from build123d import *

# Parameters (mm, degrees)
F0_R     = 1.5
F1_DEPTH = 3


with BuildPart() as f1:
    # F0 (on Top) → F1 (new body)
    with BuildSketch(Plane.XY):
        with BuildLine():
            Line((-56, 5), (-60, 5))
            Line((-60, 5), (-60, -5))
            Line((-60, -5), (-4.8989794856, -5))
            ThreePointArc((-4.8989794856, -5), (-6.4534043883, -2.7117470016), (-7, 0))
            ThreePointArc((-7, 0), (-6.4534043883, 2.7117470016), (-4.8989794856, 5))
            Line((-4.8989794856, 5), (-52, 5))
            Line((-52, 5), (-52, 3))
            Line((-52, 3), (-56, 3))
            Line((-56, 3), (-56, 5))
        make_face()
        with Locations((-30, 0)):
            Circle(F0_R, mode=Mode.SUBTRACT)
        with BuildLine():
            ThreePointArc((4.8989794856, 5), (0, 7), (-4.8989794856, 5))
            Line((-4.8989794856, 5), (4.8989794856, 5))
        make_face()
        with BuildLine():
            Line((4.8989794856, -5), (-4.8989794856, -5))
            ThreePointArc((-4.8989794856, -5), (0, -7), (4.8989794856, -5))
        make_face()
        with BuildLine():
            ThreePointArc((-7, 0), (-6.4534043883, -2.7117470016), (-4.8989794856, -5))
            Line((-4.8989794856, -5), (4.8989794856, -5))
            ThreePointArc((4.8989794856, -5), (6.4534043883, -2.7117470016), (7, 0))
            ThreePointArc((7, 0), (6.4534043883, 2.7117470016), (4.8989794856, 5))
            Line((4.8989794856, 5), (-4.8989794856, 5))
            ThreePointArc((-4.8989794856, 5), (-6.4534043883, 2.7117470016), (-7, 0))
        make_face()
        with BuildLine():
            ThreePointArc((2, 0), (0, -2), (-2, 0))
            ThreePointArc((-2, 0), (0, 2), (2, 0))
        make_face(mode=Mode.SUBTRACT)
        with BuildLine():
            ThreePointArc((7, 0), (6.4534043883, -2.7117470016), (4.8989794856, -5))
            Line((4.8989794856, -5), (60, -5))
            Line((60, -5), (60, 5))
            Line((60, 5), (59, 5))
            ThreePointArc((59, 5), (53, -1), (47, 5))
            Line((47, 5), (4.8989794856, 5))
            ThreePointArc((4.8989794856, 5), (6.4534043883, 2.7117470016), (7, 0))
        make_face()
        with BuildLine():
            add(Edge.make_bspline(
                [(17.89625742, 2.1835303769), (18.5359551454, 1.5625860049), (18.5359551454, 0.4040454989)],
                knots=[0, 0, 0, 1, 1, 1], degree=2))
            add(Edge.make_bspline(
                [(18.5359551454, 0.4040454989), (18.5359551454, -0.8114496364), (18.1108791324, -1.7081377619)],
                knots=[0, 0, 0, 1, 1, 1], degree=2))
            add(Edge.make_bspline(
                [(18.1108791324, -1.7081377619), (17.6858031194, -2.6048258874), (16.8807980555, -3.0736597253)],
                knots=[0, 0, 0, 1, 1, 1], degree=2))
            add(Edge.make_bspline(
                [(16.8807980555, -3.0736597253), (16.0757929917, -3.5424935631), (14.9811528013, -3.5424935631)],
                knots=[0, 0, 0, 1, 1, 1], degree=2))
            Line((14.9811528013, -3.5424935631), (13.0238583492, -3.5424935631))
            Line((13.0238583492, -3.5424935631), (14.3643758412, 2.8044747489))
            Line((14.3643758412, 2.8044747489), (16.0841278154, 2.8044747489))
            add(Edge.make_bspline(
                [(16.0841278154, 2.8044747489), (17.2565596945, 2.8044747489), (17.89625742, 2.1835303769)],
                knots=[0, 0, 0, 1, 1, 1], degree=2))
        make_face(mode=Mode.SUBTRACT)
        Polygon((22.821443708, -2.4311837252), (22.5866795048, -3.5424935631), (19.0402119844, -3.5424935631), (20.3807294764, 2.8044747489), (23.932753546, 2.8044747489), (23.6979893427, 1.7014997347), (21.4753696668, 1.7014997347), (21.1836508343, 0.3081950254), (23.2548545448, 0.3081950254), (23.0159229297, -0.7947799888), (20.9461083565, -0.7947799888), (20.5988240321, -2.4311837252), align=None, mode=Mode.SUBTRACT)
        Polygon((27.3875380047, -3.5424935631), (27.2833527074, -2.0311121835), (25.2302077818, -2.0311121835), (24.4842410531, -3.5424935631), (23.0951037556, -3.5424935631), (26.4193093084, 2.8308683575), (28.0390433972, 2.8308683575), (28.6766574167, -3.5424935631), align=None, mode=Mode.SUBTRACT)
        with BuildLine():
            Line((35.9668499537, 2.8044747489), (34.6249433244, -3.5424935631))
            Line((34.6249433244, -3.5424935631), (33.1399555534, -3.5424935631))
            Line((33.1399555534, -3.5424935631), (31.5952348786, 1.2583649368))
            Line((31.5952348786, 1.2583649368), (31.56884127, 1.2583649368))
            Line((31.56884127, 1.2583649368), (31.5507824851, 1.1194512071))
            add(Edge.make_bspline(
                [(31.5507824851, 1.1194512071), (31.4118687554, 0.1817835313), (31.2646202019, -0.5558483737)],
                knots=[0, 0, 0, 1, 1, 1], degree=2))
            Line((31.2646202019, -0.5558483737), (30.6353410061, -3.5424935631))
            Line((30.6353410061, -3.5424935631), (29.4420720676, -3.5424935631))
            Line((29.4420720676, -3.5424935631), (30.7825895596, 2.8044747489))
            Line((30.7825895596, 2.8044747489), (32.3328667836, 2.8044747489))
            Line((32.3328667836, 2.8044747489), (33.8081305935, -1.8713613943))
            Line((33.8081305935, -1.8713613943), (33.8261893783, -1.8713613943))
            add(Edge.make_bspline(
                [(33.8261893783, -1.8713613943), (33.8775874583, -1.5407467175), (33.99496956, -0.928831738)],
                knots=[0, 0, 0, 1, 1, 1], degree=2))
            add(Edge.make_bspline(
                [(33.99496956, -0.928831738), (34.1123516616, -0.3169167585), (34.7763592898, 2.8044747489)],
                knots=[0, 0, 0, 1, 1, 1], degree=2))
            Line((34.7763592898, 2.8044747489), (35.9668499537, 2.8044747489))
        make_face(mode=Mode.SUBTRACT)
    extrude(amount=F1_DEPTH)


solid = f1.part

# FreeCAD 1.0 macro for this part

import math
import FreeCAD as App
import Part
import Sketcher

V = App.Vector
Q = App.Units.Quantity

doc = App.newDocument("Part")
params = doc.addObject("Spreadsheet::Sheet", "Params")
for row, (alias, value) in enumerate([
    ("sketch1_diameter", "3 mm"),
    ("sketch1_diameter2", "4 mm"),
    ("sketch1_radius", "7 mm"),
    ("sketch1_radius2", "6 mm"),
    ("sketch1_radius3", "7 mm"),
    ("pad1_length", "3 mm"),
], start=1):
    params.set(f"A{row}", alias)
    params.set(f"B{row}", "=" + value)
    params.setAlias(f"B{row}", alias)

body = doc.addObject("PartDesign::Body", "Body")

# Sketch on XY plane
sketch1 = doc.addObject("Sketcher::SketchObject", "Sketch")
body.addObject(sketch1)
sketch1.AttachmentSupport = (doc.XY_Plane, [""])
sketch1.MapMode = "FlatFace"
sketch1.addGeometry(Part.LineSegment(V(-56, 5, 0), V(-60, 5, 0)), False)
sketch1.addGeometry(Part.LineSegment(V(-60, 5, 0), V(-60, -5, 0)), False)
sketch1.addGeometry(Part.LineSegment(V(-60, -5, 0), V(-4.898979, -5, 0)), False)
sketch1.addGeometry(Part.ArcOfCircle(Part.Circle(V(0, 0, 0), V(0, 0, 1), 7), math.radians(-134.415309), math.radians(-45.584691)), False)
sketch1.addGeometry(Part.LineSegment(V(4.898979, -5, 0), V(60, -5, 0)), False)
sketch1.addGeometry(Part.LineSegment(V(60, -5, 0), V(60, 5, 0)), False)
sketch1.addGeometry(Part.LineSegment(V(60, 5, 0), V(59, 5, 0)), False)
sketch1.addGeometry(Part.ArcOfCircle(Part.Circle(V(53, 5, 0), V(0, 0, 1), 6), math.radians(180), math.radians(360)), False)
sketch1.addGeometry(Part.LineSegment(V(47, 5, 0), V(4.898979, 5, 0)), False)
sketch1.addGeometry(Part.ArcOfCircle(Part.Circle(V(0, 0, 0), V(0, 0, 1), 7), math.radians(45.584691), math.radians(134.415309)), False)
sketch1.addGeometry(Part.LineSegment(V(-4.898979, 5, 0), V(-52, 5, 0)), False)
sketch1.addGeometry(Part.LineSegment(V(-52, 5, 0), V(-52, 3, 0)), False)
sketch1.addGeometry(Part.LineSegment(V(-52, 3, 0), V(-56, 3, 0)), False)
sketch1.addGeometry(Part.LineSegment(V(-56, 3, 0), V(-56, 5, 0)), False)
sketch1.addGeometry(Part.BSplineCurve([V(16.084128, 2.804475, 0), V(17.25656, 2.804475, 0), V(17.896257, 2.18353, 0)], [3, 3], [0, 1], False, 2, [1, 1, 1], False), False)
sketch1.addGeometry(Part.BSplineCurve([V(17.896257, 2.18353, 0), V(18.535955, 1.562586, 0), V(18.535955, -0.81145, 0), V(17.685803, -2.604826, 0), V(16.880798, -3.07366, 0)], [3, 1, 1, 3], [0, 1, 2.049160672, 3.098321343], False, 2, [1, 1, 1, 1, 1], False), False)
sketch1.addGeometry(Part.BSplineCurve([V(16.880798, -3.07366, 0), V(16.075793, -3.542494, 0), V(14.981153, -3.542494, 0)], [3, 3], [0, 1], False, 2, [1, 1, 1], False), False)
sketch1.addGeometry(Part.LineSegment(V(14.981153, -3.542494, 0), V(13.023858, -3.542494, 0)), False)
sketch1.addGeometry(Part.LineSegment(V(13.023858, -3.542494, 0), V(14.364376, 2.804475, 0)), False)
sketch1.addGeometry(Part.LineSegment(V(14.364376, 2.804475, 0), V(16.084128, 2.804475, 0)), False)
sketch1.addGeometry(Part.LineSegment(V(20.598824, -2.431184, 0), V(22.821444, -2.431184, 0)), False)
sketch1.addGeometry(Part.LineSegment(V(22.821444, -2.431184, 0), V(22.58668, -3.542494, 0)), False)
sketch1.addGeometry(Part.LineSegment(V(22.58668, -3.542494, 0), V(19.040212, -3.542494, 0)), False)
sketch1.addGeometry(Part.LineSegment(V(19.040212, -3.542494, 0), V(20.380729, 2.804475, 0)), False)
sketch1.addGeometry(Part.LineSegment(V(20.380729, 2.804475, 0), V(23.932754, 2.804475, 0)), False)
sketch1.addGeometry(Part.LineSegment(V(23.932754, 2.804475, 0), V(23.697989, 1.7015, 0)), False)
sketch1.addGeometry(Part.LineSegment(V(23.697989, 1.7015, 0), V(21.47537, 1.7015, 0)), False)
sketch1.addGeometry(Part.LineSegment(V(21.47537, 1.7015, 0), V(21.183651, 0.308195, 0)), False)
sketch1.addGeometry(Part.LineSegment(V(21.183651, 0.308195, 0), V(23.254855, 0.308195, 0)), False)
sketch1.addGeometry(Part.LineSegment(V(23.254855, 0.308195, 0), V(23.015923, -0.79478, 0)), False)
sketch1.addGeometry(Part.LineSegment(V(23.015923, -0.79478, 0), V(20.946108, -0.79478, 0)), False)
sketch1.addGeometry(Part.LineSegment(V(20.946108, -0.79478, 0), V(20.598824, -2.431184, 0)), False)
sketch1.addGeometry(Part.LineSegment(V(34.776359, 2.804475, 0), V(35.96685, 2.804475, 0)), False)
sketch1.addGeometry(Part.LineSegment(V(35.96685, 2.804475, 0), V(34.624943, -3.542494, 0)), False)
sketch1.addGeometry(Part.LineSegment(V(34.624943, -3.542494, 0), V(33.139956, -3.542494, 0)), False)
sketch1.addGeometry(Part.LineSegment(V(33.139956, -3.542494, 0), V(31.595235, 1.258365, 0)), False)
sketch1.addGeometry(Part.LineSegment(V(31.595235, 1.258365, 0), V(31.568841, 1.258365, 0)), False)
sketch1.addGeometry(Part.LineSegment(V(31.568841, 1.258365, 0), V(31.550782, 1.119451, 0)), False)
sketch1.addGeometry(Part.BSplineCurve([V(31.550782, 1.119451, 0), V(31.411869, 0.181784, 0), V(31.26462, -0.555848, 0)], [3, 3], [0, 1], False, 2, [1, 1, 1], False), False)
sketch1.addGeometry(Part.LineSegment(V(31.26462, -0.555848, 0), V(30.635341, -3.542494, 0)), False)
sketch1.addGeometry(Part.LineSegment(V(30.635341, -3.542494, 0), V(29.442072, -3.542494, 0)), False)
sketch1.addGeometry(Part.LineSegment(V(29.442072, -3.542494, 0), V(30.78259, 2.804475, 0)), False)
sketch1.addGeometry(Part.LineSegment(V(30.78259, 2.804475, 0), V(32.332867, 2.804475, 0)), False)
sketch1.addGeometry(Part.LineSegment(V(32.332867, 2.804475, 0), V(33.808131, -1.871361, 0)), False)
sketch1.addGeometry(Part.LineSegment(V(33.808131, -1.871361, 0), V(33.826189, -1.871361, 0)), False)
sketch1.addGeometry(Part.BSplineCurve([V(33.826189, -1.871361, 0), V(33.877587, -1.540747, 0), V(33.99497, -0.928832, 0)], [3, 3], [0, 1], False, 2, [1, 1, 1], False), False)
sketch1.addGeometry(Part.BSplineCurve([V(33.99497, -0.928832, 0), V(34.112352, -0.316917, 0), V(34.776359, 2.804475, 0)], [3, 3], [0, 1], False, 2, [1, 1, 1], False), False)
sketch1.addGeometry(Part.Circle(V(-30, 0, 0), V(0, 0, 1), 1.5), False)
sketch1.addGeometry(Part.Circle(V(0, 0, 0), V(0, 0, 1), 2), False)
sketch1.addGeometry(Part.LineSegment(V(28.676657, -3.542494, 0), V(27.387538, -3.542494, 0)), False)
sketch1.addGeometry(Part.LineSegment(V(27.387538, -3.542494, 0), V(27.283353, -2.031112, 0)), False)
sketch1.addGeometry(Part.LineSegment(V(27.283353, -2.031112, 0), V(25.230208, -2.031112, 0)), False)
sketch1.addGeometry(Part.LineSegment(V(25.230208, -2.031112, 0), V(24.484241, -3.542494, 0)), False)
sketch1.addGeometry(Part.LineSegment(V(24.484241, -3.542494, 0), V(23.095104, -3.542494, 0)), False)
sketch1.addGeometry(Part.LineSegment(V(23.095104, -3.542494, 0), V(26.419309, 2.830868, 0)), False)
sketch1.addGeometry(Part.LineSegment(V(26.419309, 2.830868, 0), V(28.039043, 2.830868, 0)), False)
sketch1.addGeometry(Part.LineSegment(V(28.039043, 2.830868, 0), V(28.676657, -3.542494, 0)), False)
sketch1.addConstraint(Sketcher.Constraint("Block", 14))
sketch1.addConstraint(Sketcher.Constraint("Block", 15))
sketch1.addConstraint(Sketcher.Constraint("Block", 16))
sketch1.addConstraint(Sketcher.Constraint("Block", 38))
sketch1.addConstraint(Sketcher.Constraint("Block", 45))
sketch1.addConstraint(Sketcher.Constraint("Block", 46))
sketch1.addConstraint(Sketcher.Constraint("Coincident", 0, 2, 1, 1))
sketch1.addConstraint(Sketcher.Constraint("Coincident", 1, 2, 2, 1))
sketch1.addConstraint(Sketcher.Constraint("Coincident", 2, 2, 3, 1))
sketch1.addConstraint(Sketcher.Constraint("Coincident", 3, 2, 4, 1))
sketch1.addConstraint(Sketcher.Constraint("Coincident", 4, 2, 5, 1))
sketch1.addConstraint(Sketcher.Constraint("Coincident", 5, 2, 6, 1))
sketch1.addConstraint(Sketcher.Constraint("Coincident", 6, 2, 7, 2))
sketch1.addConstraint(Sketcher.Constraint("Coincident", 7, 1, 8, 1))
sketch1.addConstraint(Sketcher.Constraint("Coincident", 8, 2, 9, 1))
sketch1.addConstraint(Sketcher.Constraint("Coincident", 9, 2, 10, 1))
sketch1.addConstraint(Sketcher.Constraint("Coincident", 10, 2, 11, 1))
sketch1.addConstraint(Sketcher.Constraint("Coincident", 11, 2, 12, 1))
sketch1.addConstraint(Sketcher.Constraint("Coincident", 12, 2, 13, 1))
sketch1.addConstraint(Sketcher.Constraint("Coincident", 13, 2, 0, 1))
sketch1.addConstraint(Sketcher.Constraint("Coincident", 16, 2, 17, 1))
sketch1.addConstraint(Sketcher.Constraint("Coincident", 17, 2, 18, 1))
sketch1.addConstraint(Sketcher.Constraint("Coincident", 18, 2, 19, 1))
sketch1.addConstraint(Sketcher.Constraint("Coincident", 19, 2, 14, 1))
sketch1.addConstraint(Sketcher.Constraint("Coincident", 20, 2, 21, 1))
sketch1.addConstraint(Sketcher.Constraint("Coincident", 21, 2, 22, 1))
sketch1.addConstraint(Sketcher.Constraint("Coincident", 22, 2, 23, 1))
sketch1.addConstraint(Sketcher.Constraint("Coincident", 23, 2, 24, 1))
sketch1.addConstraint(Sketcher.Constraint("Coincident", 24, 2, 25, 1))
sketch1.addConstraint(Sketcher.Constraint("Coincident", 25, 2, 26, 1))
sketch1.addConstraint(Sketcher.Constraint("Coincident", 26, 2, 27, 1))
sketch1.addConstraint(Sketcher.Constraint("Coincident", 27, 2, 28, 1))
sketch1.addConstraint(Sketcher.Constraint("Coincident", 28, 2, 29, 1))
sketch1.addConstraint(Sketcher.Constraint("Coincident", 29, 2, 30, 1))
sketch1.addConstraint(Sketcher.Constraint("Coincident", 30, 2, 31, 1))
sketch1.addConstraint(Sketcher.Constraint("Coincident", 31, 2, 20, 1))
sketch1.addConstraint(Sketcher.Constraint("Coincident", 32, 2, 33, 1))
sketch1.addConstraint(Sketcher.Constraint("Coincident", 33, 2, 34, 1))
sketch1.addConstraint(Sketcher.Constraint("Coincident", 34, 2, 35, 1))
sketch1.addConstraint(Sketcher.Constraint("Coincident", 35, 2, 36, 1))
sketch1.addConstraint(Sketcher.Constraint("Coincident", 36, 2, 37, 1))
sketch1.addConstraint(Sketcher.Constraint("Coincident", 37, 2, 38, 1))
sketch1.addConstraint(Sketcher.Constraint("Coincident", 38, 2, 39, 1))
sketch1.addConstraint(Sketcher.Constraint("Coincident", 39, 2, 40, 1))
sketch1.addConstraint(Sketcher.Constraint("Coincident", 40, 2, 41, 1))
sketch1.addConstraint(Sketcher.Constraint("Coincident", 41, 2, 42, 1))
sketch1.addConstraint(Sketcher.Constraint("Coincident", 42, 2, 43, 1))
sketch1.addConstraint(Sketcher.Constraint("Coincident", 43, 2, 44, 1))
sketch1.addConstraint(Sketcher.Constraint("Coincident", 44, 2, 45, 1))
sketch1.addConstraint(Sketcher.Constraint("Coincident", 46, 2, 32, 1))
sketch1.addConstraint(Sketcher.Constraint("Coincident", 49, 2, 50, 1))
sketch1.addConstraint(Sketcher.Constraint("Coincident", 50, 2, 51, 1))
sketch1.addConstraint(Sketcher.Constraint("Coincident", 51, 2, 52, 1))
sketch1.addConstraint(Sketcher.Constraint("Coincident", 52, 2, 53, 1))
sketch1.addConstraint(Sketcher.Constraint("Coincident", 53, 2, 54, 1))
sketch1.addConstraint(Sketcher.Constraint("Coincident", 54, 2, 55, 1))
sketch1.addConstraint(Sketcher.Constraint("Coincident", 55, 2, 56, 1))
sketch1.addConstraint(Sketcher.Constraint("Coincident", 56, 2, 49, 1))
sketch1.addConstraint(Sketcher.Constraint("Horizontal", 0))
sketch1.addConstraint(Sketcher.Constraint("Vertical", 1))
sketch1.addConstraint(Sketcher.Constraint("Horizontal", 2))
sketch1.addConstraint(Sketcher.Constraint("Horizontal", 4))
sketch1.addConstraint(Sketcher.Constraint("Vertical", 5))
sketch1.addConstraint(Sketcher.Constraint("Horizontal", 6))
sketch1.addConstraint(Sketcher.Constraint("Horizontal", 8))
sketch1.addConstraint(Sketcher.Constraint("Horizontal", 10))
sketch1.addConstraint(Sketcher.Constraint("Vertical", 11))
sketch1.addConstraint(Sketcher.Constraint("Horizontal", 12))
sketch1.addConstraint(Sketcher.Constraint("Vertical", 13))
sketch1.addConstraint(Sketcher.Constraint("Horizontal", 17))
sketch1.addConstraint(Sketcher.Constraint("Horizontal", 19))
sketch1.addConstraint(Sketcher.Constraint("Horizontal", 20))
sketch1.addConstraint(Sketcher.Constraint("Horizontal", 22))
sketch1.addConstraint(Sketcher.Constraint("Horizontal", 24))
sketch1.addConstraint(Sketcher.Constraint("Horizontal", 26))
sketch1.addConstraint(Sketcher.Constraint("Horizontal", 28))
sketch1.addConstraint(Sketcher.Constraint("Horizontal", 30))
sketch1.addConstraint(Sketcher.Constraint("Horizontal", 32))
sketch1.addConstraint(Sketcher.Constraint("Horizontal", 34))
sketch1.addConstraint(Sketcher.Constraint("Horizontal", 36))
sketch1.addConstraint(Sketcher.Constraint("Horizontal", 40))
sketch1.addConstraint(Sketcher.Constraint("Horizontal", 42))
sketch1.addConstraint(Sketcher.Constraint("Horizontal", 44))
sketch1.addConstraint(Sketcher.Constraint("Horizontal", 49))
sketch1.addConstraint(Sketcher.Constraint("Horizontal", 51))
sketch1.addConstraint(Sketcher.Constraint("Horizontal", 53))
sketch1.addConstraint(Sketcher.Constraint("Horizontal", 55))
sketch1.addConstraint(Sketcher.Constraint("Coincident", 3, 3, -1, 1))
sketch1.addConstraint(Sketcher.Constraint("Coincident", 9, 3, -1, 1))
sketch1.addConstraint(Sketcher.Constraint("Coincident", 48, 3, -1, 1))
sketch1.addConstraint(Sketcher.Constraint("PointOnObject", 47, 3, -1))
sketch1.addConstraint(Sketcher.Constraint("Diameter", 47, Q("3 mm")))
sketch1.addConstraint(Sketcher.Constraint("Diameter", 48, Q("4 mm")))
sketch1.addConstraint(Sketcher.Constraint("Radius", 3, Q("7 mm")))
sketch1.addConstraint(Sketcher.Constraint("Radius", 7, Q("6 mm")))
sketch1.addConstraint(Sketcher.Constraint("Radius", 9, Q("7 mm")))
sketch1.addConstraint(Sketcher.Constraint("DistanceX", 0, 2, 0, 1, Q("4 mm")))
sketch1.addConstraint(Sketcher.Constraint("DistanceX", 6, 2, 6, 1, Q("1 mm")))
sketch1.addConstraint(Sketcher.Constraint("DistanceX", 12, 2, 12, 1, Q("4 mm")))
sketch1.addConstraint(Sketcher.Constraint("DistanceY", 1, 2, 1, 1, Q("10 mm")))
sketch1.addConstraint(Sketcher.Constraint("DistanceY", 5, 1, 5, 2, Q("10 mm")))
sketch1.addConstraint(Sketcher.Constraint("DistanceY", 11, 2, 11, 1, Q("2 mm")))
sketch1.addConstraint(Sketcher.Constraint("DistanceY", 13, 1, 13, 2, Q("2 mm")))
sketch1.addConstraint(Sketcher.Constraint("DistanceX", -1, 1, 7, 3, Q("53 mm")))
sketch1.addConstraint(Sketcher.Constraint("DistanceY", -1, 1, 7, 3, Q("5 mm")))
sketch1.addConstraint(Sketcher.Constraint("DistanceX", 47, 3, -1, 1, Q("30 mm")))
sketch1.addConstraint(Sketcher.Constraint("DistanceX", 0, 2, -1, 1, Q("60 mm")))
sketch1.addConstraint(Sketcher.Constraint("DistanceY", -1, 1, 0, 2, Q("5 mm")))
sketch1.addConstraint(Sketcher.Constraint("DistanceY", 3, 2, -1, 1, Q("5 mm")))
sketch1.addConstraint(Sketcher.Constraint("DistanceY", -1, 1, 7, 1, Q("5 mm")))
sketch1.addConstraint(Sketcher.Constraint("DistanceX", 19, 1, 19, 2, Q("1.719752 mm")))
sketch1.addConstraint(Sketcher.Constraint("DistanceX", 20, 1, 20, 2, Q("2.22262 mm")))
sketch1.addConstraint(Sketcher.Constraint("DistanceX", 26, 2, 26, 1, Q("2.22262 mm")))
sketch1.addConstraint(Sketcher.Constraint("DistanceX", 32, 1, 32, 2, Q("1.190491 mm")))
sketch1.addConstraint(Sketcher.Constraint("DistanceX", 40, 2, 40, 1, Q("1.193269 mm")))
sketch1.addConstraint(Sketcher.Constraint("DistanceX", 44, 1, 44, 2, Q("0.018059 mm")))
sketch1.addConstraint(Sketcher.Constraint("DistanceX", 49, 2, 49, 1, Q("1.289119 mm")))
sketch1.addConstraint(Sketcher.Constraint("DistanceY", -1, 1, 25, 2, Q("1.7015 mm")))
sketch1.addConstraint(Sketcher.Constraint("DistanceX", 3, 2, 21, 2, Q("17.6877 mm")))
sketch1.addConstraint(Sketcher.Constraint("DistanceX", 19, 2, 23, 2, Q("4.296602 mm")))
sketch1.addConstraint(Sketcher.Constraint("DistanceX", 28, 2, 24, 2, Q("0.677899 mm")))
sketch1.addConstraint(Sketcher.Constraint("DistanceX", 20, 2, 33, 2, Q("11.8035 mm")))
sketch1.addConstraint(Sketcher.Constraint("DistanceX", 39, 2, 36, 2, Q("0.9335 mm")))
sketch1.addConstraint(Sketcher.Constraint("Distance", 31, Q("1.672849 mm")))
sketch1.addConstraint(Sketcher.Constraint("Distance", 39, Q("3.052219 mm")))
sketch1.addConstraint(Sketcher.Constraint("Distance", 50, Q("1.514968 mm")))
sketch1.addConstraint(Sketcher.Constraint("Distance", 52, Q("1.68545 mm")))
sketch1.addConstraint(Sketcher.Constraint("Distance", 54, Q("7.188191 mm")))
sketch1.addConstraint(Sketcher.Constraint("DistanceX", 17, 2, 17, 1, Q("1.957294 mm")))
sketch1.addConstraint(Sketcher.Constraint("DistanceX", 22, 2, 22, 1, Q("3.546468 mm")))
sketch1.addConstraint(Sketcher.Constraint("DistanceX", 24, 1, 24, 2, Q("3.552024 mm")))
sketch1.addConstraint(Sketcher.Constraint("DistanceX", 28, 1, 28, 2, Q("2.071204 mm")))
sketch1.addConstraint(Sketcher.Constraint("DistanceX", 30, 2, 30, 1, Q("2.069815 mm")))
sketch1.addConstraint(Sketcher.Constraint("DistanceX", 34, 2, 34, 1, Q("1.484988 mm")))
sketch1.addConstraint(Sketcher.Constraint("DistanceX", 36, 2, 36, 1, Q("0.026394 mm")))
sketch1.addConstraint(Sketcher.Constraint("DistanceX", 42, 1, 42, 2, Q("1.550277 mm")))
sketch1.addConstraint(Sketcher.Constraint("DistanceX", 51, 2, 51, 1, Q("2.053145 mm")))
sketch1.addConstraint(Sketcher.Constraint("DistanceX", 53, 2, 53, 1, Q("1.389137 mm")))
sketch1.addConstraint(Sketcher.Constraint("DistanceX", 55, 1, 55, 2, Q("1.619734 mm")))
sketch1.addConstraint(Sketcher.Constraint("DistanceX", -1, 1, 25, 2, Q("23.697989 mm")))
sketch1.addConstraint(Sketcher.Constraint("DistanceY", 29, 2, -1, 1, Q("0.79478 mm")))
sketch1.addConstraint(Sketcher.Constraint("DistanceX", -1, 1, 30, 2, Q("20.946108 mm")))
sketch1.addConstraint(Sketcher.Constraint("DistanceX", -1, 1, 36, 2, Q("31.568841 mm")))
sketch1.addConstraint(Sketcher.Constraint("DistanceX", -1, 1, 41, 2, Q("30.78259 mm")))
sketch1.addConstraint(Sketcher.Constraint("DistanceX", -1, 1, 49, 2, Q("27.387538 mm")))
sketch1.addConstraint(Sketcher.Constraint("DistanceX", -1, 1, 52, 2, Q("24.484241 mm")))
sketch1.addConstraint(Sketcher.Constraint("DistanceX", -1, 1, 54, 2, Q("26.419309 mm")))
sketch1.addConstraint(Sketcher.Constraint("DistanceY", -1, 1, 54, 2, Q("2.830868 mm")))
sketch1.addConstraint(Sketcher.Constraint("DistanceY", 20, 2, 19, 2, Q("5.235658 mm")))
sketch1.addConstraint(Sketcher.Constraint("DistanceY", 21, 2, 20, 2, Q("1.11131 mm")))
sketch1.addConstraint(Sketcher.Constraint("DistanceY", 20, 2, 23, 2, Q("5.235658 mm")))
sketch1.addConstraint(Sketcher.Constraint("DistanceY", 27, 2, 23, 2, Q("2.49628 mm")))
sketch1.addConstraint(Sketcher.Constraint("DistanceY", 33, 2, 32, 2, Q("6.346968 mm")))
sketch1.addConstraint(Sketcher.Constraint("DistanceY", 35, 2, 32, 2, Q("1.54611 mm")))
sketch1.addConstraint(Sketcher.Constraint("DistanceY", 36, 2, 41, 2, Q("1.54611 mm")))
sketch1.addConstraint(Sketcher.Constraint("DistanceY", 49, 2, 20, 2, Q("1.11131 mm")))
sketch1.setExpression("Constraints[91]", "Params.sketch1_diameter")
sketch1.setExpression("Constraints[92]", "Params.sketch1_diameter2")
sketch1.setExpression("Constraints[93]", "Params.sketch1_radius")
sketch1.setExpression("Constraints[94]", "Params.sketch1_radius2")
sketch1.setExpression("Constraints[95]", "Params.sketch1_radius3")
pad1 = doc.addObject("PartDesign::Pad", "Pad")
body.addObject(pad1)
pad1.Profile = sketch1
pad1.setExpression("Length", "Params.pad1_length")

doc.recompute()
